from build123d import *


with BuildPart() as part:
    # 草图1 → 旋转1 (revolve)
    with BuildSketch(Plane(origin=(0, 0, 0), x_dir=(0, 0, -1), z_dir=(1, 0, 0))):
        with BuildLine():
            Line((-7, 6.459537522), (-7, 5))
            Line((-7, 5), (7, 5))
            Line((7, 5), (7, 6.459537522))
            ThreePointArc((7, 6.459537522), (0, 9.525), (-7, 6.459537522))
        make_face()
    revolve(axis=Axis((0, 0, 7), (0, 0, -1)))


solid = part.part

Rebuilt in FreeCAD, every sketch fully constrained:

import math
import FreeCAD as App
import Part
import Sketcher
from FreeCAD import Vector

doc = App.newDocument("Part")
body = doc.addObject("PartDesign::Body", "Body")

# Sketch on YZ plane
sketch1 = body.newObject("Sketcher::SketchObject", "Sketch")
sketch1.AttachmentSupport = (doc.getObject("YZ_Plane"), [""])
sketch1.MapMode = "FlatFace"
sketch1.addGeometry([
    Part.LineSegment(Vector(6.5, 7, 0), Vector(5, 7, 0)),
    Part.LineSegment(Vector(5, 7, 0), Vector(5, -7, 0)),
    Part.LineSegment(Vector(5, -7, 0), Vector(6.5, -7, 0)),
    Part.ArcOfCircle(Part.Circle(Vector(0, 0, 0), Vector(0, 0, 1), 9.5), math.radians(-47), math.radians(47)),
], False)
sketch1.addConstraint([
    Sketcher.Constraint("Coincident", 0, 2, 1, 1),
    Sketcher.Constraint("Coincident", 1, 2, 2, 1),
    Sketcher.Constraint("Coincident", 2, 2, 3, 1),
    Sketcher.Constraint("Coincident", 3, 2, 0, 1),
    Sketcher.Constraint("Horizontal", 0),
    Sketcher.Constraint("Vertical", 1),
    Sketcher.Constraint("Horizontal", 2),
    Sketcher.Constraint("Coincident", 3, 3, -1, 1),
    Sketcher.Constraint("Vertical", 2, 2, 3, 2),
    Sketcher.Constraint("DistanceY", 1, 2, 1, 1, 14.0),
    Sketcher.Constraint("DistanceX", -1, 1, 0, 2, 5.0),
    Sketcher.Constraint("Radius", 3, 9.525),
])
revolution = body.newObject("PartDesign::Revolution", "Revolution")
revolution.Profile = sketch1
revolution.ReferenceAxis = (sketch1, ["V_Axis"])
revolution.Angle = 360

doc.recompute()
